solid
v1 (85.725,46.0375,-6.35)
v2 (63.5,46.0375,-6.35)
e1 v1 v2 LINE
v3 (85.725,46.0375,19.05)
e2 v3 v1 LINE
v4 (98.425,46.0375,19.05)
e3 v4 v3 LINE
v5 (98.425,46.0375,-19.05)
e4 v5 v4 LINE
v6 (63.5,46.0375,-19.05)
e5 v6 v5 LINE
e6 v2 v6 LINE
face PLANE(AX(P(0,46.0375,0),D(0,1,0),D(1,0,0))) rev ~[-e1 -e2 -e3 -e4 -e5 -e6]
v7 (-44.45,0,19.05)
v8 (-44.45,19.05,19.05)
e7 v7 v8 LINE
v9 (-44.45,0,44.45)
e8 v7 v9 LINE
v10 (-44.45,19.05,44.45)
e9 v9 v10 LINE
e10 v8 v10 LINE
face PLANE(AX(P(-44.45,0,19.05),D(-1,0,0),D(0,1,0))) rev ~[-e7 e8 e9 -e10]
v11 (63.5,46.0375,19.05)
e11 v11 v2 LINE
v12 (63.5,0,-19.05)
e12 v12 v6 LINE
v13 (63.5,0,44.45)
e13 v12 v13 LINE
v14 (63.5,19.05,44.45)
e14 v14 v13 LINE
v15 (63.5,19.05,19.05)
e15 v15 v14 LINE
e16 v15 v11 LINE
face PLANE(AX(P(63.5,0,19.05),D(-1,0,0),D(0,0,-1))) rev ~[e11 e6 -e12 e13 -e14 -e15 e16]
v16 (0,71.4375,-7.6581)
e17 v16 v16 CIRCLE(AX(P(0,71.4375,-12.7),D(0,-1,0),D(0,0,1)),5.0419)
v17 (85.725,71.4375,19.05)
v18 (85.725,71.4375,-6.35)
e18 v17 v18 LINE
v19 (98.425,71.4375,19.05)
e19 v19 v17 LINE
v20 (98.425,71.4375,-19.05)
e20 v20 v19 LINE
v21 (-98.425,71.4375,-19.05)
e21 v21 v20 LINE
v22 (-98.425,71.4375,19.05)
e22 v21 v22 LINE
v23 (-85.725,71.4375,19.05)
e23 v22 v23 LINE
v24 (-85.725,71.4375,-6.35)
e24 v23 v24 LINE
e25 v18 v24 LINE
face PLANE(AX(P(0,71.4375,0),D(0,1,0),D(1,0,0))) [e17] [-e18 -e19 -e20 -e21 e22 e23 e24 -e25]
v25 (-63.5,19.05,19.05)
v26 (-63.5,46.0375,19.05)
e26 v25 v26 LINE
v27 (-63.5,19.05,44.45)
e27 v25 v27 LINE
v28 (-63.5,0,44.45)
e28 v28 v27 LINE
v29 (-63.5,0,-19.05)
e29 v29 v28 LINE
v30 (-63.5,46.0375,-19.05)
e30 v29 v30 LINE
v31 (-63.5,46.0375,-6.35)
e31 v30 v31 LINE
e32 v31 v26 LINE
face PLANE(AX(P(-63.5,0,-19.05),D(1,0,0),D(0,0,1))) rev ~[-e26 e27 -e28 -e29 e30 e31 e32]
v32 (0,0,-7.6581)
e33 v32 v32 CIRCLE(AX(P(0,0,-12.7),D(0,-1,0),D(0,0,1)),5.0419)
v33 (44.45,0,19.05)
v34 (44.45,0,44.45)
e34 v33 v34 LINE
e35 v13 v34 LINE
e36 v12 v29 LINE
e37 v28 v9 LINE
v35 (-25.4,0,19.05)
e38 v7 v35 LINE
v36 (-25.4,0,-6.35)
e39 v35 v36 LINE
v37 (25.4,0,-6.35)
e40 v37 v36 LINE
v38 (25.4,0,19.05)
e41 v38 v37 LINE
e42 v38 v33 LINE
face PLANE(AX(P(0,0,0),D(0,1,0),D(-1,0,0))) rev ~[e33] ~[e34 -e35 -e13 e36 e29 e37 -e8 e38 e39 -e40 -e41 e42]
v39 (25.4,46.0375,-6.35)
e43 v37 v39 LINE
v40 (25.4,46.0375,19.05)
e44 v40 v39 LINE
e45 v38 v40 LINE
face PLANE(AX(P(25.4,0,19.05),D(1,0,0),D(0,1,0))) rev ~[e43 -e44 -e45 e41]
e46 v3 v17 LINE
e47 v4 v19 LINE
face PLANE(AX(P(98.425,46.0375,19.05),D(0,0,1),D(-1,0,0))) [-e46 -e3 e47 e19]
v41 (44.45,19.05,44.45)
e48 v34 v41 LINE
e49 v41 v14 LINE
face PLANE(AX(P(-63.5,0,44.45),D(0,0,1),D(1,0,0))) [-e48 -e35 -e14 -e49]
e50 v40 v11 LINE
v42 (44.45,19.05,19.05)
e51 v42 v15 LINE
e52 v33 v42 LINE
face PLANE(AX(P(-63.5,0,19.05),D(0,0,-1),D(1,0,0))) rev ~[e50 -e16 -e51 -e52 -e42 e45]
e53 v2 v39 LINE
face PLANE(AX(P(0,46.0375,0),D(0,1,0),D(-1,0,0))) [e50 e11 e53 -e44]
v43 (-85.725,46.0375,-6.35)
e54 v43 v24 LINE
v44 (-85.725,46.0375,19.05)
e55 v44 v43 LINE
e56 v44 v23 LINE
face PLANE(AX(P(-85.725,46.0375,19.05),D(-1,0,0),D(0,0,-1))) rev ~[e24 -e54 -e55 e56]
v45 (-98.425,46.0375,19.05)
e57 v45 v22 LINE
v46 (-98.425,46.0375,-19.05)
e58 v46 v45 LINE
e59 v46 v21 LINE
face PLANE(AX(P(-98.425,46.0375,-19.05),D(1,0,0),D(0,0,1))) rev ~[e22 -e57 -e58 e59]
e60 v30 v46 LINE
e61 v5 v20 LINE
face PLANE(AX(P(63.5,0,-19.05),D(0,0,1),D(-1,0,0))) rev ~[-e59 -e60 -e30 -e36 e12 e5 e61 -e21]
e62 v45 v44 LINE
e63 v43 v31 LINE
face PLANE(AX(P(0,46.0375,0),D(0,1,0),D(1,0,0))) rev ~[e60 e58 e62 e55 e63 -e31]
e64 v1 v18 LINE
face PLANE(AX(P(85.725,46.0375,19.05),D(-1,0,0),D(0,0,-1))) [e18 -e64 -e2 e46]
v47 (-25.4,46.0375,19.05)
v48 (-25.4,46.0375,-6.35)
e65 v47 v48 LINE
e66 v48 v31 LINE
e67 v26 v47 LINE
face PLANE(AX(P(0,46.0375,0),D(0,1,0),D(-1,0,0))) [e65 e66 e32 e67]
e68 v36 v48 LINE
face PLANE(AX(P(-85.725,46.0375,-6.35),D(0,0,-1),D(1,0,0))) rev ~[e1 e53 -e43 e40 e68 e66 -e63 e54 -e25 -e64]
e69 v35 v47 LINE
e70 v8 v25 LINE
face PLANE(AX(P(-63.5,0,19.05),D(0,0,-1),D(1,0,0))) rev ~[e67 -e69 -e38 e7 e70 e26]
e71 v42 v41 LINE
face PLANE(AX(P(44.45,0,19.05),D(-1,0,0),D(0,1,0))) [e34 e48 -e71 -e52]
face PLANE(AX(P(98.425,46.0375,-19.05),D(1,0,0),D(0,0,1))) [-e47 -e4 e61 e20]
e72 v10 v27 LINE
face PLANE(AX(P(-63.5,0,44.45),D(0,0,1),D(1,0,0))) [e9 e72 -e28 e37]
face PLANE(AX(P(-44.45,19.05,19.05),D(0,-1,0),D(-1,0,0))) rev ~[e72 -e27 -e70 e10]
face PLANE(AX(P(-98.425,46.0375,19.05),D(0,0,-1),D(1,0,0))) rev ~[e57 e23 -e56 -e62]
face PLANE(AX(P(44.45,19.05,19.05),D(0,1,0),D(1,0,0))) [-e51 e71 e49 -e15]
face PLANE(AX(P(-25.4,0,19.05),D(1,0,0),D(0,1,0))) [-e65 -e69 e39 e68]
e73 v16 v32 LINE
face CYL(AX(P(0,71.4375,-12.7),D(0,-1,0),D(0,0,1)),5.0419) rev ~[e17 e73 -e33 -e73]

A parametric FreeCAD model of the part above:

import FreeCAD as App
import Part
import Sketcher
from FreeCAD import Vector
Q = App.Units.Quantity


def add_polygon(sketch, points):
    """Adds a closed chain of lines whose ends are joined by coincident constraints."""
    first, n = sketch.GeometryCount, len(points)
    for a, b in zip(points, points[1:] + points[:1]):
        sketch.addGeometry(Part.LineSegment(App.Vector(*a, 0), App.Vector(*b, 0)), False)
    for i in range(n):
        sketch.addConstraint(Sketcher.Constraint("Coincident", first + i, 2, first + (i + 1) % n, 1))

doc = App.newDocument("Part")
params = doc.addObject("Spreadsheet::Sheet", "Params")
for row, (alias, value) in enumerate([
    ("sketch1_width", "5 in"),
    ("sketch1_height", "1.5 in"),
    ("pad1_length", "1.8125 in"),
    ("sketch2_height", "1 in"),
    ("sketch2_width", "0.5 in"),
    ("sketch2_height2", "1.5 in"),
    ("pad2_length", "1 in"),
    ("sketch3_width", "0.75 in"),
    ("pad3_length", "1 in"),
    ("sketch4_diameter", "0.397 in"),
    ("hole_diameter", "0.397 in"),
    ("sketch5_width", "2 in"),
    ("sketch5_height", "1.8125 in"),
    ("pocket1_length", "1 in"),
], start=1):
    params.set(f"A{row}", alias)
    params.set(f"B{row}", "=" + value)
    params.setAlias(f"B{row}", alias)

body = doc.addObject("PartDesign::Body", "Body")

sketch1 = body.newObject("Sketcher::SketchObject", "Sketch")
sketch1.AttachmentSupport = (doc.getObject("XZ_Plane"), [""])
sketch1.MapMode = "FlatFace"
add_polygon(sketch1, [(-64, -19), (-64, 19), (64, 19), (64, -19)])
sketch1.addConstraint([
    Sketcher.Constraint("Vertical", 0),
    Sketcher.Constraint("Horizontal", 1),
    Sketcher.Constraint("Vertical", 2),
    Sketcher.Constraint("Horizontal", 3),
    Sketcher.Constraint("Symmetric", 0, 2, 2, 2, -1, 1),
    Sketcher.Constraint("DistanceX", 1, 1, 1, 2, Q("5 in")),
    Sketcher.Constraint("DistanceY", 0, 1, 0, 2, Q("1.5 in")),
])
sketch1.setExpression("Constraints[9]", "Params.sketch1_width")
sketch1.setExpression("Constraints[10]", "Params.sketch1_height")
pad1 = body.newObject("PartDesign::Pad", "Pad")
pad1.Profile = sketch1
pad1.setExpression("Length", "Params.pad1_length")
pad1.Reversed = True

sketch2 = body.newObject("Sketcher::SketchObject", "Sketch001")
sketch2.AttachmentSupport = (doc.getObject("XZ_Plane"), [""])
sketch2.MapMode = "FlatFace"
sketch2.AttachmentOffset = App.Placement(Vector(0, 0, -1.8125 * 25.4), App.Rotation())
add_polygon(sketch2, [(98, -19), (-98, -19), (-98, 19), (-86, 19), (-86, -6), (86, -6), (86, 19), (98, 19)])
sketch2.addConstraint([
    Sketcher.Constraint("Horizontal", 0),
    Sketcher.Constraint("Vertical", 1),
    Sketcher.Constraint("Horizontal", 2),
    Sketcher.Constraint("Vertical", 3),
    Sketcher.Constraint("Horizontal", 4),
    Sketcher.Constraint("Vertical", 5),
    Sketcher.Constraint("Horizontal", 6),
    Sketcher.Constraint("Vertical", 7),
    Sketcher.Constraint("Symmetric", 0, 2, 6, 2, -1, 1),
    Sketcher.Constraint("Symmetric", 2, 2, 5, 2, -2),
    Sketcher.Constraint("DistanceY", 3, 2, 3, 1, Q("1 in")),
    Sketcher.Constraint("DistanceX", 2, 1, 2, 2, Q("0.5 in")),
    Sketcher.Constraint("DistanceY", 1, 1, 1, 2, Q("1.5 in")),
    Sketcher.Constraint("DistanceX", 0, 2, -1, 1, Q("3.875 in")),
])
sketch2.setExpression("Constraints[18]", "Params.sketch2_height")
sketch2.setExpression("Constraints[19]", "Params.sketch2_width")
sketch2.setExpression("Constraints[20]", "Params.sketch2_height2")
pad2 = body.newObject("PartDesign::Pad", "Pad001")
pad2.Profile = sketch2
pad2.setExpression("Length", "Params.pad2_length")
pad2.Reversed = True

sketch3 = body.newObject("Sketcher::SketchObject", "Sketch002")
sketch3.AttachmentSupport = (doc.getObject("XY_Plane"), [""])
sketch3.MapMode = "FlatFace"
sketch3.AttachmentOffset = App.Placement(Vector(0, 0, 0.75 * 25.4), App.Rotation())
add_polygon(sketch3, [(-64, 19), (-64, 0), (-44, 0), (-44, 19)])
add_polygon(sketch3, [(44, 0), (64, 0), (64, 19), (44, 19)])
sketch3.addConstraint([
    Sketcher.Constraint("Vertical", 0),
    Sketcher.Constraint("Horizontal", 1),
    Sketcher.Constraint("Vertical", 2),
    Sketcher.Constraint("Horizontal", 3),
    Sketcher.Constraint("Horizontal", 4),
    Sketcher.Constraint("Vertical", 5),
    Sketcher.Constraint("Horizontal", 6),
    Sketcher.Constraint("Vertical", 7),
    Sketcher.Constraint("Symmetric", 0, 2, 4, 2, -1, 1),
    Sketcher.Constraint("Symmetric", 2, 2, 6, 2, -2),
    Sketcher.Constraint("PointOnObject", 0, 2, -1),
    Sketcher.Constraint("Equal", 6, 0),
    Sketcher.Constraint("DistanceX", 1, 1, 1, 2, Q("0.75 in")),
    Sketcher.Constraint("DistanceX", 0, 2, 4, 2, Q("5 in")),
])
sketch3.setExpression("Constraints[20]", "Params.sketch3_width")
pad3 = body.newObject("PartDesign::Pad", "Pad002")
pad3.Profile = sketch3
pad3.setExpression("Length", "Params.pad3_length")

sketch4 = body.newObject("Sketcher::SketchObject", "Sketch003")
sketch4.AttachmentSupport = (doc.getObject("XZ_Plane"), [""])
sketch4.MapMode = "FlatFace"
sketch4.AttachmentOffset = App.Placement(Vector(0, 0, -2.8125 * 25.4), App.Rotation())
sketch4.addGeometry(Part.Circle(Vector(0, -13, 0), Vector(0, 0, 1), 5), False)
sketch4.addConstraint([
    Sketcher.Constraint("PointOnObject", 0, 3, -2),
    Sketcher.Constraint("Diameter", 0, Q("0.397 in")),
    Sketcher.Constraint("DistanceY", 0, 3, -1, 1, Q("0.5 in")),
])
sketch4.setExpression("Constraints[1]", "Params.sketch4_diameter")
doc.recompute()
hole = body.newObject("PartDesign::Hole", "Hole")
hole.Profile = sketch4
hole.ThreadType = "None"
hole.setExpression("Diameter", "Params.hole_diameter")
hole.DepthType = "ThroughAll"
hole.Reversed = True

sketch5 = body.newObject("Sketcher::SketchObject", "Sketch004")
sketch5.AttachmentSupport = (doc.getObject("XY_Plane"), [""])
sketch5.MapMode = "FlatFace"
sketch5.AttachmentOffset = App.Placement(Vector(0, 0, 0.75 * 25.4), App.Rotation())
add_polygon(sketch5, [(-25, 0), (25, 0), (25, 46), (-25, 46)])
sketch5.addConstraint([
    Sketcher.Constraint("Horizontal", 0),
    Sketcher.Constraint("Vertical", 1),
    Sketcher.Constraint("Horizontal", 2),
    Sketcher.Constraint("Vertical", 3),
    Sketcher.Constraint("Symmetric", 0, 2, 3, 2, -1, 1),
    Sketcher.Constraint("DistanceX", 0, 1, 0, 2, Q("2 in")),
    Sketcher.Constraint("DistanceY", 1, 1, 1, 2, Q("1.8125 in")),
])
sketch5.setExpression("Constraints[9]", "Params.sketch5_width")
sketch5.setExpression("Constraints[10]", "Params.sketch5_height")
pocket1 = body.newObject("PartDesign::Pocket", "Pocket")
pocket1.Profile = sketch5
pocket1.setExpression("Length", "Params.pocket1_length")

doc.recompute()
